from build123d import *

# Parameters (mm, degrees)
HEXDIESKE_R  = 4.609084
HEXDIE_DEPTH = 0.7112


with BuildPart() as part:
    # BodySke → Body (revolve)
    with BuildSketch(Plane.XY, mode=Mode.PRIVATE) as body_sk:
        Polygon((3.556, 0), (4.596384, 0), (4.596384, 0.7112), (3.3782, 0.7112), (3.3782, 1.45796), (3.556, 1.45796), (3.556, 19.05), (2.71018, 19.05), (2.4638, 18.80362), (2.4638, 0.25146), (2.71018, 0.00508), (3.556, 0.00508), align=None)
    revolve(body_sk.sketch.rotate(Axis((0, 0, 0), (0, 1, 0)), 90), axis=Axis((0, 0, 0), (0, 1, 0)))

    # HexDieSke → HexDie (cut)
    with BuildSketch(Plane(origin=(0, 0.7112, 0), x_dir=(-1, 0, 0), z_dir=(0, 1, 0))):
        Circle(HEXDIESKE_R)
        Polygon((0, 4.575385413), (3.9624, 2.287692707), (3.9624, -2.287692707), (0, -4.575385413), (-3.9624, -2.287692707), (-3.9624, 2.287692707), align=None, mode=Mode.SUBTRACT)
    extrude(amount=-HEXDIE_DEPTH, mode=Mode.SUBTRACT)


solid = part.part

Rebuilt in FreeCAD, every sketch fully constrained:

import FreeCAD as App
import Part
import Sketcher
Q = App.Units.Quantity


def add_polygon(sketch, points):
    """Adds a closed chain of lines whose ends are joined by coincident constraints."""
    first, n = sketch.GeometryCount, len(points)
    for a, b in zip(points, points[1:] + points[:1]):
        sketch.addGeometry(Part.LineSegment(App.Vector(*a, 0), App.Vector(*b, 0)), False)
    for i in range(n):
        sketch.addConstraint(Sketcher.Constraint("Coincident", first + i, 2, first + (i + 1) % n, 1))

doc = App.newDocument("Part")
params = doc.addObject("Spreadsheet::Sheet", "Params")
for row, (alias, value) in enumerate([
    ("sketch1_width", "0.007 in"),
    ("sketch1_height", "0.028 in"),
    ("revolution_angle", "360 deg"),
    ("pocket1_length", "0.028 in"),
], start=1):
    params.set(f"A{row}", alias)
    params.set(f"B{row}", "=" + value)
    params.setAlias(f"B{row}", alias)

body = doc.addObject("PartDesign::Body", "Body")

sketch1 = doc.addObject("Sketcher::SketchObject", "Sketch")
body.addObject(sketch1)
sketch1.AttachmentSupport = (doc.XY_Plane, [""])
sketch1.MapMode = "FlatFace"
add_polygon(sketch1, [(3.556, 0), (4.596, 0), (4.596, 0.711), (3.378, 0.711), (3.378, 1.458), (3.556, 1.458), (3.556, 19.05), (2.71, 19.05), (2.464, 18.804), (2.464, 0.251), (2.71, 0.005), (3.556, 0.005)])
sketch1.addConstraint(Sketcher.Constraint("Horizontal", 0))
sketch1.addConstraint(Sketcher.Constraint("Vertical", 1))
sketch1.addConstraint(Sketcher.Constraint("Horizontal", 2))
sketch1.addConstraint(Sketcher.Constraint("Vertical", 3))
sketch1.addConstraint(Sketcher.Constraint("Horizontal", 4))
sketch1.addConstraint(Sketcher.Constraint("Vertical", 5))
sketch1.addConstraint(Sketcher.Constraint("Horizontal", 6))
sketch1.addConstraint(Sketcher.Constraint("Vertical", 8))
sketch1.addConstraint(Sketcher.Constraint("Horizontal", 10))
sketch1.addConstraint(Sketcher.Constraint("Vertical", 11))
sketch1.addConstraint(Sketcher.Constraint("PointOnObject", 0, 2, -1))
sketch1.addConstraint(Sketcher.Constraint("Perpendicular", 7, 9))
sketch1.addConstraint(Sketcher.Constraint("Vertical", 6, 2, 9, 2))
sketch1.addConstraint(Sketcher.Constraint("Vertical", 5, 2, 10, 2))
sketch1.addConstraint(Sketcher.Constraint("Equal", 7, 9))
sketch1.addConstraint(Sketcher.Constraint("DistanceX", 4, 1, 4, 2, Q("0.007 in")))
sketch1.addConstraint(Sketcher.Constraint("DistanceY", 1, 1, 1, 2, Q("0.028 in")))
sketch1.addConstraint(Sketcher.Constraint("DistanceX", -1, 1, 4, 2, Q("0.14 in")))
sketch1.addConstraint(Sketcher.Constraint("DistanceY", -1, 1, 5, 2, Q("0.75 in")))
sketch1.addConstraint(Sketcher.Constraint("DistanceX", 6, 2, 6, 1, Q("0.0333 in")))
sketch1.addConstraint(Sketcher.Constraint("DistanceY", 3, 1, 3, 2, Q("0.0294 in")))
sketch1.addConstraint(Sketcher.Constraint("DistanceY", 8, 2, 8, 1, Q("0.7304 in")))
sketch1.addConstraint(Sketcher.Constraint("DistanceY", 11, 2, 11, 1, Q("0.0002 in")))
sketch1.addConstraint(Sketcher.Constraint("DistanceX", 0, 1, 0, 2, Q("1.040384 mm")))
sketch1.setExpression("Constraints[27]", "Params.sketch1_width")
sketch1.setExpression("Constraints[28]", "Params.sketch1_height")
revolution = doc.addObject("PartDesign::Revolution", "Revolution")
body.addObject(revolution)
revolution.Profile = sketch1
revolution.ReferenceAxis = (sketch1, ["V_Axis"])
revolution.setExpression("Angle", "Params.revolution_angle")

sketch2 = doc.addObject("Sketcher::SketchObject", "Sketch001")
body.addObject(sketch2)
sketch2.AttachmentSupport = (doc.XZ_Plane, [""])
sketch2.MapMode = "FlatFace"
sketch2.AttachmentOffset = App.Placement(App.Vector(0, 0, -0.028 * 25.4), App.Rotation())
sketch2.addGeometry(Part.Circle(App.Vector(0, 0, 0), App.Vector(0, 0, 1), 4.6), False)
add_polygon(sketch2, [(4, 2.3), (0, 4.6), (-4, 2.3), (-4, -2.3), (0, -4.6), (4, -2.3)])
sketch2.addConstraint(Sketcher.Constraint("Vertical", 3))
sketch2.addConstraint(Sketcher.Constraint("Vertical", 6))
sketch2.addConstraint(Sketcher.Constraint("Coincident", 0, 3, -1, 1))
sketch2.addConstraint(Sketcher.Constraint("Symmetric", 1, 2, 4, 2, -1, 1))
sketch2.addConstraint(Sketcher.Constraint("Symmetric", 2, 2, 5, 2, -1, 1))
sketch2.addConstraint(Sketcher.Constraint("PointOnObject", 1, 2, -2))
sketch2.addConstraint(Sketcher.Constraint("Parallel", 1, 4))
sketch2.addConstraint(Sketcher.Constraint("Horizontal", 3, 2, 5, 2))
sketch2.addConstraint(Sketcher.Constraint("Angle", 1, Q("150 deg")))
sketch2.addConstraint(Sketcher.Constraint("DistanceX", 2, 2, -1, 1, Q("0.156 in")))
sketch2.addConstraint(Sketcher.Constraint("Diameter", 0, Q("9.218168 mm")))
sketch2.addConstraint(Sketcher.Constraint("DistanceY", 3, 2, 1, 2, Q("0.2701999 in")))
pocket1 = doc.addObject("PartDesign::Pocket", "Pocket")
body.addObject(pocket1)
pocket1.Profile = sketch2
pocket1.setExpression("Length", "Params.pocket1_length")
pocket1.Reversed = True

doc.recompute()
